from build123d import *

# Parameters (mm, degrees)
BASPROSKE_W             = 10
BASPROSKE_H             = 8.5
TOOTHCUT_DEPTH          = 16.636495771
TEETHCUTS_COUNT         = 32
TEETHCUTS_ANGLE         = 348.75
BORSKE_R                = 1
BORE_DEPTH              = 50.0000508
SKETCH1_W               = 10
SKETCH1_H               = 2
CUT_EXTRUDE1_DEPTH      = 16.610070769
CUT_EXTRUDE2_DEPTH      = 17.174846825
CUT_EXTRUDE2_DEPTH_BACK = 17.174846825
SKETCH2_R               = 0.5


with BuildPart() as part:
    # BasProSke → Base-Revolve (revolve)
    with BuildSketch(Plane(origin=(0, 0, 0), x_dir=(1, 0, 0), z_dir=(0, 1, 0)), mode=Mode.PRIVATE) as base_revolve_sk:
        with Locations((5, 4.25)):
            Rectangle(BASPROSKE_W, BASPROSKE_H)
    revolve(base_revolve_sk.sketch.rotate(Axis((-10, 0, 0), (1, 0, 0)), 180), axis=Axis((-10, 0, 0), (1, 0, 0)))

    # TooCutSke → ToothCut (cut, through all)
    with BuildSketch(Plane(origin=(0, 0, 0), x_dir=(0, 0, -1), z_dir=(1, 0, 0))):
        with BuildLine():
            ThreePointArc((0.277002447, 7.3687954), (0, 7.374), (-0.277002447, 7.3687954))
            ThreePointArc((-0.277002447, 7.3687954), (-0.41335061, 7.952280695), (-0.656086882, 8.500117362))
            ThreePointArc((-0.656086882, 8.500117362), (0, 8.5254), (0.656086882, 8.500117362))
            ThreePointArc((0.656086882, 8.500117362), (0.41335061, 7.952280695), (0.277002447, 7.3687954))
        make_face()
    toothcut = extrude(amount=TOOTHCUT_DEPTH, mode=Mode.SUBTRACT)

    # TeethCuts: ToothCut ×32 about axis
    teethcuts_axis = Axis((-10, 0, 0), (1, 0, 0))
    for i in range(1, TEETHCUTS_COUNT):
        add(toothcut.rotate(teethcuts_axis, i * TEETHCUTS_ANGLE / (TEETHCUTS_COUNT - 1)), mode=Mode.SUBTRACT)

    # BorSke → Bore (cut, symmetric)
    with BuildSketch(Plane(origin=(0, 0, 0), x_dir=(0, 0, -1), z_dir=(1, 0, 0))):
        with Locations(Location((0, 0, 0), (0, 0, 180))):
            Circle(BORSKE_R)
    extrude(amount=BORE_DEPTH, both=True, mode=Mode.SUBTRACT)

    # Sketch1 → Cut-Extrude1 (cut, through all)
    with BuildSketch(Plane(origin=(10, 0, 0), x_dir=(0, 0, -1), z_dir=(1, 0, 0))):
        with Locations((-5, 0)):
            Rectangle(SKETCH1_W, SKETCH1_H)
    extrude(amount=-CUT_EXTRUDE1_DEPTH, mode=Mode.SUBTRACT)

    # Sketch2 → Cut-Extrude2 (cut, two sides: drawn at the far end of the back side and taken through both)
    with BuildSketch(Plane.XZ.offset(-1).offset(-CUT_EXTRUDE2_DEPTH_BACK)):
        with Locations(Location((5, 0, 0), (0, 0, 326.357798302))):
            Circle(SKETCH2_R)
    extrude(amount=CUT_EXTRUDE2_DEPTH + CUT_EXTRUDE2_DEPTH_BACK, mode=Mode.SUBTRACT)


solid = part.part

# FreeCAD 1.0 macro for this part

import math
import FreeCAD as App
import Part
import Sketcher
from FreeCAD import Vector

doc = App.newDocument("Part")
body = doc.addObject("PartDesign::Body", "Body")

sketch1 = body.newObject("Sketcher::SketchObject", "Sketch")
sketch1.AttachmentSupport = (doc.getObject("XZ_Plane"), [""])
sketch1.MapMode = "FlatFace"
sketch1.addGeometry([
    Part.LineSegment(Vector(0, -8, 0), Vector(0, 0, 0)),
    Part.LineSegment(Vector(0, 0, 0), Vector(10, 0, 0)),
    Part.LineSegment(Vector(10, 0, 0), Vector(10, -8, 0)),
    Part.LineSegment(Vector(10, -8, 0), Vector(0, -8, 0)),
], False)
sketch1.addConstraint([
    Sketcher.Constraint("Coincident", 0, 2, 1, 1),
    Sketcher.Constraint("Coincident", 1, 2, 2, 1),
    Sketcher.Constraint("Coincident", 2, 2, 3, 1),
    Sketcher.Constraint("Coincident", 3, 2, 0, 1),
    Sketcher.Constraint("Vertical", 0),
    Sketcher.Constraint("Horizontal", 1),
    Sketcher.Constraint("Vertical", 2),
    Sketcher.Constraint("Horizontal", 3),
    Sketcher.Constraint("Coincident", 0, 2, -1, 1),
    Sketcher.Constraint("DistanceX", 1, 1, 1, 2, 10.0),
    Sketcher.Constraint("DistanceY", 0, 1, 0, 2, 8.5),
])
revolution = body.newObject("PartDesign::Revolution", "Revolution")
revolution.Profile = sketch1
revolution.ReferenceAxis = (sketch1, ["H_Axis"])
revolution.Angle = 360

sketch2 = body.newObject("Sketcher::SketchObject", "Sketch001")
sketch2.AttachmentSupport = (doc.getObject("YZ_Plane"), [""])
sketch2.MapMode = "FlatFace"
sketch2.addGeometry([
    Part.ArcOfCircle(Part.Circle(Vector(0, 0, 0), Vector(0, 0, 1), 7.4), math.radians(-2.15), math.radians(2.15)),
    Part.ArcOfCircle(Part.Circle(Vector(6.9, -3.4, 0), Vector(0, 0, 1), 3.2), math.radians(61), math.radians(82)),
    Part.ArcOfCircle(Part.Circle(Vector(0, 0, 0), Vector(0, 0, 1), 8.5), math.radians(-4.41), math.radians(4.41)),
    Part.ArcOfCircle(Part.Circle(Vector(6.9, 3.4, 0), Vector(0, 0, 1), 3.2), math.radians(-82), math.radians(-61)),
], False)
sketch2.addConstraint([
    Sketcher.Constraint("Coincident", 0, 1, 1, 2),
    Sketcher.Constraint("Coincident", 1, 1, 2, 1),
    Sketcher.Constraint("Coincident", 2, 2, 3, 2),
    Sketcher.Constraint("Coincident", 3, 1, 0, 2),
    Sketcher.Constraint("Coincident", 0, 3, -1, 1),
    Sketcher.Constraint("Coincident", 2, 3, -1, 1),
    Sketcher.Constraint("Equal", 1, 3),
    Sketcher.Constraint("Symmetric", 1, 3, 3, 3, -1),
    Sketcher.Constraint("Radius", 1, 3.2),
    Sketcher.Constraint("Radius", 0, 7.374),
    Sketcher.Constraint("Radius", 2, 8.5254),
    Sketcher.Constraint("DistanceX", -1, 1, 1, 3, 6.935581),
    Sketcher.Constraint("DistanceX", 0, 1, 1, 1, 1.131322),
])
pocket1 = body.newObject("PartDesign::Pocket", "Pocket")
pocket1.Profile = sketch2
pocket1.Type = "ThroughAll"
pocket1.Reversed = True
doc.recompute()

polarpattern = body.newObject("PartDesign::PolarPattern", "PolarPattern")
polarpattern.Originals = [pocket1]
polarpattern.Axis = (doc.getObject("X_Axis"), [""])
polarpattern.Angle = 360
polarpattern.Occurrences = 32
body.Tip = polarpattern

sketch3 = body.newObject("Sketcher::SketchObject", "Sketch002")
sketch3.AttachmentSupport = (doc.getObject("YZ_Plane"), [""])
sketch3.MapMode = "FlatFace"
sketch3.addGeometry(Part.Circle(Vector(0, 0, 0), Vector(0, 0, 1), 1), False)
sketch3.addConstraint([
    Sketcher.Constraint("Coincident", 0, 3, -1, 1),
    Sketcher.Constraint("Diameter", 0, 2.0),
])
pocket2 = body.newObject("PartDesign::Pocket", "Pocket001")
pocket2.Profile = sketch3
pocket2.Length = 100.000102
pocket2.Midplane = True

sketch4 = body.newObject("Sketcher::SketchObject", "Sketch003")
sketch4.AttachmentSupport = (doc.getObject("YZ_Plane"), [""])
sketch4.MapMode = "FlatFace"
sketch4.AttachmentOffset = App.Placement(Vector(0, 0, 10), App.Rotation())
sketch4.addGeometry([
    Part.LineSegment(Vector(1, 10, 0), Vector(-1, 10, 0)),
    Part.LineSegment(Vector(-1, 10, 0), Vector(-1, 0, 0)),
    Part.LineSegment(Vector(-1, 0, 0), Vector(1, 0, 0)),
    Part.LineSegment(Vector(1, 0, 0), Vector(1, 10, 0)),
], False)
sketch4.addConstraint([
    Sketcher.Constraint("Coincident", 0, 2, 1, 1),
    Sketcher.Constraint("Coincident", 1, 2, 2, 1),
    Sketcher.Constraint("Coincident", 2, 2, 3, 1),
    Sketcher.Constraint("Coincident", 3, 2, 0, 1),
    Sketcher.Constraint("Horizontal", 0),
    Sketcher.Constraint("Vertical", 1),
    Sketcher.Constraint("Horizontal", 2),
    Sketcher.Constraint("Vertical", 3),
    Sketcher.Constraint("Symmetric", 1, 2, 2, 2, -1, 1),
    Sketcher.Constraint("DistanceX", 0, 2, 0, 1, 2.0),
    Sketcher.Constraint("DistanceY", 1, 2, 1, 1, 10.0),
])
pocket3 = body.newObject("PartDesign::Pocket", "Pocket002")
pocket3.Profile = sketch4
pocket3.Type = "ThroughAll"

sketch5 = body.newObject("Sketcher::SketchObject", "Sketch004")
sketch5.AttachmentSupport = (doc.getObject("XZ_Plane"), [""])
sketch5.MapMode = "FlatFace"
sketch5.AttachmentOffset = App.Placement(Vector(0, 0, -1), App.Rotation())
sketch5.addGeometry(Part.Circle(Vector(5, 0, 0), Vector(0, 0, 1), 0.5), False)
sketch5.addConstraint([
    Sketcher.Constraint("PointOnObject", 0, 3, -1),
    Sketcher.Constraint("Diameter", 0, 1.0),
    Sketcher.Constraint("DistanceX", -1, 1, 0, 3, 5.0),
])
pocket4 = body.newObject("PartDesign::Pocket", "Pocket003")
pocket4.Profile = sketch5
pocket4.Type = "ThroughAll"
pocket4.Midplane = True

doc.recompute()
